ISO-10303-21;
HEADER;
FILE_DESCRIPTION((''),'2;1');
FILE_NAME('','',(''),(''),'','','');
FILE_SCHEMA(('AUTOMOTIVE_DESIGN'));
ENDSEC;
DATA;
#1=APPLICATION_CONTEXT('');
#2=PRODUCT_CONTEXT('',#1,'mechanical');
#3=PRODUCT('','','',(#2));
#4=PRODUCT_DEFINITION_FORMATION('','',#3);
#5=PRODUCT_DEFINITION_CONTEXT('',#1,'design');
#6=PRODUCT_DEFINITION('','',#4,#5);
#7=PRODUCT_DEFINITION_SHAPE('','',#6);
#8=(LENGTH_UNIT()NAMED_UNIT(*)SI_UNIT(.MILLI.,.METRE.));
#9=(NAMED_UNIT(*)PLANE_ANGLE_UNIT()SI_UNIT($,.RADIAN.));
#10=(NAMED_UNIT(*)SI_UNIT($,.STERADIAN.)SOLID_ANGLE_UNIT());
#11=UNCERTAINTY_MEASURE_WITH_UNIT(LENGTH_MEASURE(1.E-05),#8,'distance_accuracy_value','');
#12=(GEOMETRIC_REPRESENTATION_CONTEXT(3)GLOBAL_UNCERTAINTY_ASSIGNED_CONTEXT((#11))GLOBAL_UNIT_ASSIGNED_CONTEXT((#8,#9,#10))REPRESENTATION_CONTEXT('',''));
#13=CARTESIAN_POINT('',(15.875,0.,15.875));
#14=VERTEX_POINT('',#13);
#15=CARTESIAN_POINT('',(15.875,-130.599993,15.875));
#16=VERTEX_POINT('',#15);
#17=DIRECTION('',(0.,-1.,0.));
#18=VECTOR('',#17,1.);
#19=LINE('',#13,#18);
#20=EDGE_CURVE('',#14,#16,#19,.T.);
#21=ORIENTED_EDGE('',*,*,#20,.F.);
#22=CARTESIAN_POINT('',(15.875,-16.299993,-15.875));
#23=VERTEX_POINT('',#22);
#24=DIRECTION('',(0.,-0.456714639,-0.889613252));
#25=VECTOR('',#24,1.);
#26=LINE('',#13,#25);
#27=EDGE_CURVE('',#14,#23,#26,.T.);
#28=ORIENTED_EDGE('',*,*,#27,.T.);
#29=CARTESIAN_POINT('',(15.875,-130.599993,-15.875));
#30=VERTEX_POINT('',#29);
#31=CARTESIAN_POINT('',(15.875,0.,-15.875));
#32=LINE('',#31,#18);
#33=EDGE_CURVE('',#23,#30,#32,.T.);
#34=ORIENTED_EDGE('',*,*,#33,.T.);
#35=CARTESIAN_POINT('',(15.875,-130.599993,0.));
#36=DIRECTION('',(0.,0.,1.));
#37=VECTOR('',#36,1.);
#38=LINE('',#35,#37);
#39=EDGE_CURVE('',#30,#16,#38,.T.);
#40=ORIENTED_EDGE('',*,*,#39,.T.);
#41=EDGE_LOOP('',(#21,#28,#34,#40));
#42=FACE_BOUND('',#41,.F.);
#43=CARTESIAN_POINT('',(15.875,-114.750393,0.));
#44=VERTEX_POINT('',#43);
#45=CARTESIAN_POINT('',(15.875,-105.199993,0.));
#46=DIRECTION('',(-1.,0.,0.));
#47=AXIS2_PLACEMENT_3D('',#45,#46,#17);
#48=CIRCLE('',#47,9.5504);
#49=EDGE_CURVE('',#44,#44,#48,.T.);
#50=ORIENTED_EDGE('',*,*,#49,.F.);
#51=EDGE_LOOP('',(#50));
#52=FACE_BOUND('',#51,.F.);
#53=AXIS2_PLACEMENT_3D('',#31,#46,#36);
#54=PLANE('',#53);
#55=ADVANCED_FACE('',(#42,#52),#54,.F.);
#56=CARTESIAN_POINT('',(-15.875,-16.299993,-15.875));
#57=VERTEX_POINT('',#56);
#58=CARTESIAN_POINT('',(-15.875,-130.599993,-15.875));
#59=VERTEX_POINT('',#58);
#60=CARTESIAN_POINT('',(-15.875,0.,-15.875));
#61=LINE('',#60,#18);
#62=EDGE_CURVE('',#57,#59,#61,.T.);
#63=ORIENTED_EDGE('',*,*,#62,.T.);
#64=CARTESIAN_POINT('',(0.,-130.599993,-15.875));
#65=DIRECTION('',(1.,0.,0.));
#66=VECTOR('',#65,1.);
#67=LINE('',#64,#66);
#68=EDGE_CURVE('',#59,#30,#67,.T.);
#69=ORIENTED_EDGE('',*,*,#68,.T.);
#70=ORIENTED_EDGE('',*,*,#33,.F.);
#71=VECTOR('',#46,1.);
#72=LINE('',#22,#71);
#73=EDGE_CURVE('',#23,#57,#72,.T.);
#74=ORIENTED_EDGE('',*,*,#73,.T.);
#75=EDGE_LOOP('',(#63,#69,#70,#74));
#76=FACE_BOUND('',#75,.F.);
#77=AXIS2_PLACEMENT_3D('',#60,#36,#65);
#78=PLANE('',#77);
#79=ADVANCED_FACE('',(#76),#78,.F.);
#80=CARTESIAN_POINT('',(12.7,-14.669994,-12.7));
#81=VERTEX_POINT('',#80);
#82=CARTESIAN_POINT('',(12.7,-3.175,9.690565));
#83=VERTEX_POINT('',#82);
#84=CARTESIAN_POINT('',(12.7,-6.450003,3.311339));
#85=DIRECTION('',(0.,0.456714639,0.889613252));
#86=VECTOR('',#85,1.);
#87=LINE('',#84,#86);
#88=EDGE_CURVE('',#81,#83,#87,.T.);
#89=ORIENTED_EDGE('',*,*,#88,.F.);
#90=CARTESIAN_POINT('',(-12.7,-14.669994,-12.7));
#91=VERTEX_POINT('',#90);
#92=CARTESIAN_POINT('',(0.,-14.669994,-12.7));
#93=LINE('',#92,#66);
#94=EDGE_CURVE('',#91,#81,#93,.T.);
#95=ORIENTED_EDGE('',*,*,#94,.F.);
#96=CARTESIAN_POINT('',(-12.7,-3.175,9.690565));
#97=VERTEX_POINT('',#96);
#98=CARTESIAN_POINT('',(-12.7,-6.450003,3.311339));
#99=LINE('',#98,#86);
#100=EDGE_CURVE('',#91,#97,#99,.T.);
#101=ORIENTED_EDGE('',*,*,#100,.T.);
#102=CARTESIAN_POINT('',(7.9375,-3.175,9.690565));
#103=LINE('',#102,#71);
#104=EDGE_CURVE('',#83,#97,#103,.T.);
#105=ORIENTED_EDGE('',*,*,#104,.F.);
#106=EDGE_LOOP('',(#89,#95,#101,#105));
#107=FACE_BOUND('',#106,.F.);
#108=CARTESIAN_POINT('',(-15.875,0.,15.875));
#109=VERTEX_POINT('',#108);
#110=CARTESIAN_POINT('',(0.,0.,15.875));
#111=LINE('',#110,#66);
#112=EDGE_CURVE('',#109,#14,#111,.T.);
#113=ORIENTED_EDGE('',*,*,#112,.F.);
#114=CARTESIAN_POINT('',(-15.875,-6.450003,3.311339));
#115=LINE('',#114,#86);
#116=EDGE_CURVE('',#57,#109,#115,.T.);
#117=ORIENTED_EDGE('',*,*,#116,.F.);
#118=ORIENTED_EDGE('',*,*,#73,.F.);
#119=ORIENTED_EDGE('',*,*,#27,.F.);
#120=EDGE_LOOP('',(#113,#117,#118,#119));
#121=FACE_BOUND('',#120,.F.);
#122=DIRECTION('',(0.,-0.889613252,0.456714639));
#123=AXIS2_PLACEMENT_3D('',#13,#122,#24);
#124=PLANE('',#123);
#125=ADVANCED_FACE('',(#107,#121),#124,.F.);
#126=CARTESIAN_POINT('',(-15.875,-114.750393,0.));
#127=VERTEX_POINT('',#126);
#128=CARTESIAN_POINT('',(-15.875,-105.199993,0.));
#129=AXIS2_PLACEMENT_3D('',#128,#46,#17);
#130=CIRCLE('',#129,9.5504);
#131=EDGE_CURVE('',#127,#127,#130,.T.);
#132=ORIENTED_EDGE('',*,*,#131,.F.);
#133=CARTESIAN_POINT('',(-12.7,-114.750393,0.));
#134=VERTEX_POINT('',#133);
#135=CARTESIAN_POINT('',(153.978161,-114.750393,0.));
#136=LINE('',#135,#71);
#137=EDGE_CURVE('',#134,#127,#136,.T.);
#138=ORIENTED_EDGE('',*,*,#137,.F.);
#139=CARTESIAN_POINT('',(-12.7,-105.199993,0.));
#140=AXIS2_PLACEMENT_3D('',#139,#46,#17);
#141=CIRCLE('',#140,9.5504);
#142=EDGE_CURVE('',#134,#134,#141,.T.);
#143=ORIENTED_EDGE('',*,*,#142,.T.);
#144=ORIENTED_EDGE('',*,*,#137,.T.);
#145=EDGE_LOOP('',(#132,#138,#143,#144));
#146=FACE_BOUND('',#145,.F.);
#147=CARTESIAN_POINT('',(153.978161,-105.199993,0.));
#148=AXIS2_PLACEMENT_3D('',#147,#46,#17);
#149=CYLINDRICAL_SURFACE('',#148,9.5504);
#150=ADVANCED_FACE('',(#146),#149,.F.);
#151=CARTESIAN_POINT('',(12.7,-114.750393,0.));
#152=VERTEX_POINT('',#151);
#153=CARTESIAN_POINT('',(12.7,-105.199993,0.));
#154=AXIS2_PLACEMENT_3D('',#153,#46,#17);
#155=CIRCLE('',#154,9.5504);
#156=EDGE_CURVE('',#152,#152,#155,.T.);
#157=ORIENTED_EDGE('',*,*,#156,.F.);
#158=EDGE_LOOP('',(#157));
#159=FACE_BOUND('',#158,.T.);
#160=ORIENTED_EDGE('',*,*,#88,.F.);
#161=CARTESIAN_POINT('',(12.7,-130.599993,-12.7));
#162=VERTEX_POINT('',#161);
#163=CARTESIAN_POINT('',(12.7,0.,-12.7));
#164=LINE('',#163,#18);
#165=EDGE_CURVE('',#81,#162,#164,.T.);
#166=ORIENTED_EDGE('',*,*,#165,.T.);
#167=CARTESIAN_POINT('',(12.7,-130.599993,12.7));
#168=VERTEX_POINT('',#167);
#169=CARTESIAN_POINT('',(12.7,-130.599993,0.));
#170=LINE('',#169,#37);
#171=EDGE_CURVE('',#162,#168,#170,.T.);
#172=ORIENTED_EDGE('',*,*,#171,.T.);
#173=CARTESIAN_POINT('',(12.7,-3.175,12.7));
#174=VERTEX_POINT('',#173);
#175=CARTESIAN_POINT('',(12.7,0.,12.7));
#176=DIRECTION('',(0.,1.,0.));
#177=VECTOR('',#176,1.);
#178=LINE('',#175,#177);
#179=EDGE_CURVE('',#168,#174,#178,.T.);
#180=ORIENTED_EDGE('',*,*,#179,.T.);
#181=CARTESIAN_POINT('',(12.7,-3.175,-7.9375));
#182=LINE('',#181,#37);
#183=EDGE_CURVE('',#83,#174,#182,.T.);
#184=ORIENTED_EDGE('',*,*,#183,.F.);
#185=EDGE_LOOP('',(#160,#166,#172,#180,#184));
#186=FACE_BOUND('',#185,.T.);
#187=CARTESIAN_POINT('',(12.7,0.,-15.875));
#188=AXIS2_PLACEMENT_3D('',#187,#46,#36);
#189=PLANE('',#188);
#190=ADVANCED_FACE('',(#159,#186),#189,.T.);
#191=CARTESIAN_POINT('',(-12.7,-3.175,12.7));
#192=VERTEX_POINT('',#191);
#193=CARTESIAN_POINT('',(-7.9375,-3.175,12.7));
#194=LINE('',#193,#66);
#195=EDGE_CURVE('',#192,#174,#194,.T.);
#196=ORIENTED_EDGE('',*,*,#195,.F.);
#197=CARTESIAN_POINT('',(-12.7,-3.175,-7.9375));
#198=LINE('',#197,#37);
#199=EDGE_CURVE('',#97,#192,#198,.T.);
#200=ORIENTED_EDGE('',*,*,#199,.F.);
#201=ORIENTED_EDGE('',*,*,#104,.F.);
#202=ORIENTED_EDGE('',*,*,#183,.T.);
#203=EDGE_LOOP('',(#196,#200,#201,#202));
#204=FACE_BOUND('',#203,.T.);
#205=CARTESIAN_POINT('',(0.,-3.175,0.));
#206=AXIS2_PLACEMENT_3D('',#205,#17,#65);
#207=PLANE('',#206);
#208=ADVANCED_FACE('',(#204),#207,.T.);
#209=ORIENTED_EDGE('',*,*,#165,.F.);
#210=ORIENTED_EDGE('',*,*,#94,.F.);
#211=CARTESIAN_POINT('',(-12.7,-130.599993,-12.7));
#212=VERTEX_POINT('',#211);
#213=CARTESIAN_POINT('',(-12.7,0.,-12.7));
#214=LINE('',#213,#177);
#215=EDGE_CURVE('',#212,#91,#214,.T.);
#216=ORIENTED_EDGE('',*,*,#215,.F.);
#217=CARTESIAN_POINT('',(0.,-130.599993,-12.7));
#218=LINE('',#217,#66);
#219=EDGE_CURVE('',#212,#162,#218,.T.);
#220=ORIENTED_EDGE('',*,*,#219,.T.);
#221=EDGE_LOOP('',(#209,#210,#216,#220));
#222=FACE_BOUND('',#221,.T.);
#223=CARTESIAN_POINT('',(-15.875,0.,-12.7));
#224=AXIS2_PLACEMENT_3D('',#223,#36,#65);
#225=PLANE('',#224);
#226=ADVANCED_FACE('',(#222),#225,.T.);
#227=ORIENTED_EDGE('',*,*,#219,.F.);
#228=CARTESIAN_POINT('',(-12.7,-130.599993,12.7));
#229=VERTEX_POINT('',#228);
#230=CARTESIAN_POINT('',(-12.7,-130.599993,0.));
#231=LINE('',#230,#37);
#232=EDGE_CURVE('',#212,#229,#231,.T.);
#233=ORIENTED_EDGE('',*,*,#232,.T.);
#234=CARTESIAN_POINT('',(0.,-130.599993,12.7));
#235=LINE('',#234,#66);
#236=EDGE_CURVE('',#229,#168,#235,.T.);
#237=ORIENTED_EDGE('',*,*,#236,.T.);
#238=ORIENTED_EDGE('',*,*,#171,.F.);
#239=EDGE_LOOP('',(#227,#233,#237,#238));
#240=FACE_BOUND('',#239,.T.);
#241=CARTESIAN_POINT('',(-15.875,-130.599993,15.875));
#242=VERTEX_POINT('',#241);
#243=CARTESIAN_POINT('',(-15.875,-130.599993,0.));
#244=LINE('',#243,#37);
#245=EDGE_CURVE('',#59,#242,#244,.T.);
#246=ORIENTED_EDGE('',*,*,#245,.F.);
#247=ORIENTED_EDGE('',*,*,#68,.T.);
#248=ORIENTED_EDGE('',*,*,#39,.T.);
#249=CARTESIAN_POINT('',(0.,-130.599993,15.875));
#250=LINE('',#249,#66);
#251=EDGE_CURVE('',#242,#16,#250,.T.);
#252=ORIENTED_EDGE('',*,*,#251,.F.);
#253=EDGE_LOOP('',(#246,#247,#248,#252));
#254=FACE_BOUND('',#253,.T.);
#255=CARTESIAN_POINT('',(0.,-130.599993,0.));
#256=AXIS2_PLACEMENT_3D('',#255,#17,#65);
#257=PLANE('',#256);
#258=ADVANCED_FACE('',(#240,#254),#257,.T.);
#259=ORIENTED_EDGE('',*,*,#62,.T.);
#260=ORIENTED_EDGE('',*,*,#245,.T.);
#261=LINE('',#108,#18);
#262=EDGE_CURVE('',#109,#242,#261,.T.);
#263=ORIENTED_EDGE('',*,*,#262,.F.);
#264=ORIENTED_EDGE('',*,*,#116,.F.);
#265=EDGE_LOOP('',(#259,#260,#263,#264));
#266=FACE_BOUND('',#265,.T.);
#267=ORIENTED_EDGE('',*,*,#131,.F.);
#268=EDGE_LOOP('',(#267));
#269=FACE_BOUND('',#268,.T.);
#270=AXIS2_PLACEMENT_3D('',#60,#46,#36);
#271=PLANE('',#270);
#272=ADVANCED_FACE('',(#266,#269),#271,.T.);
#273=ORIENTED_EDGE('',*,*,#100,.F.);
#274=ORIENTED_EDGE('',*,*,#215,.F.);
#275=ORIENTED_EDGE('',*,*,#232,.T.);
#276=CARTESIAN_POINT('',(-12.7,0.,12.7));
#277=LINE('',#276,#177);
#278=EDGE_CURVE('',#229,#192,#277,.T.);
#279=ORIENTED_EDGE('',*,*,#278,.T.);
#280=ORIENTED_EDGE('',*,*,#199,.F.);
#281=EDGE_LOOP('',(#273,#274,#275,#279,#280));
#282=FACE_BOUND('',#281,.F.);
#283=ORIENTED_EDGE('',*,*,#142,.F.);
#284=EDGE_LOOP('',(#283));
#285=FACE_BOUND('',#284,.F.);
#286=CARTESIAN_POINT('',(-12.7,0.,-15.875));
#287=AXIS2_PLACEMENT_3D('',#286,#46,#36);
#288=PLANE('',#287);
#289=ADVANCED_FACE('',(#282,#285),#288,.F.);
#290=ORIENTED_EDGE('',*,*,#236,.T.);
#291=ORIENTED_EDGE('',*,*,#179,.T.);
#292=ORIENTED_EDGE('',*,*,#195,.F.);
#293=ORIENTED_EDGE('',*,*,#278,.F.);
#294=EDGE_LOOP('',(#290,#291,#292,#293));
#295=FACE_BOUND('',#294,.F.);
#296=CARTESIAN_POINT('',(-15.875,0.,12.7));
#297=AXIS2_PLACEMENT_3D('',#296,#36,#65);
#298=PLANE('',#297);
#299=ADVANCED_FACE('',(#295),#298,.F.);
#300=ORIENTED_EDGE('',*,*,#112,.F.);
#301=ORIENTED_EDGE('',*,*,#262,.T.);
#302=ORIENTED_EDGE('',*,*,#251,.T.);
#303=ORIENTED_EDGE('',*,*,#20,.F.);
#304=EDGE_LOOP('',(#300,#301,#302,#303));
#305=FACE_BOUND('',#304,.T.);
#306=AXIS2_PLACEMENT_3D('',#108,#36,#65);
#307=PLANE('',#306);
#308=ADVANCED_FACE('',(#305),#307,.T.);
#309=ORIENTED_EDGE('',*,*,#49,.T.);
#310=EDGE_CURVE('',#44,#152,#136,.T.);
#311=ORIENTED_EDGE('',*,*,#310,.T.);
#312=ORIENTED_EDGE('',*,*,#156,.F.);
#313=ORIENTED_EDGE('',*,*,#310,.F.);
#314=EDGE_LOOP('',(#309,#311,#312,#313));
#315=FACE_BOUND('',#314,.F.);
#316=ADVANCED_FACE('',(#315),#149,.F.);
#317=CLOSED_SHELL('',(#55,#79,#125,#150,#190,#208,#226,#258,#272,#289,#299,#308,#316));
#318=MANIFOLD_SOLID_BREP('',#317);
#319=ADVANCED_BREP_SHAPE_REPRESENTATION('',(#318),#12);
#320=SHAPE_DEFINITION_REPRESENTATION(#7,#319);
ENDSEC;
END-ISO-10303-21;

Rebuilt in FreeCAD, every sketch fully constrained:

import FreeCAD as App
import Part
import Sketcher
Q = App.Units.Quantity


def faces_at(feature, points):
    """Names of the faces that lie closest to the given points."""
    faces = feature.Shape.Faces
    near = lambda p: min(range(len(faces)), key=lambda i: faces[i].distToShape(Part.Vertex(*p))[0])
    return sorted({f"Face{near(p) + 1}" for p in points})


def add_polygon(sketch, points):
    """Adds a closed chain of lines whose ends are joined by coincident constraints."""
    first, n = sketch.GeometryCount, len(points)
    for a, b in zip(points, points[1:] + points[:1]):
        sketch.addGeometry(Part.LineSegment(App.Vector(*a, 0), App.Vector(*b, 0)), False)
    for i in range(n):
        sketch.addConstraint(Sketcher.Constraint("Coincident", first + i, 2, first + (i + 1) % n, 1))

doc = App.newDocument("Part")
params = doc.addObject("Spreadsheet::Sheet", "Params")
for row, (alias, value) in enumerate([
    ("sketch1_width", "1.25 in"),
    ("pad1_length", "130.599993 mm"),
    ("thickness_wall", "0.125 in"),
    ("sketch2_height", "1.25 in"),
    ("pocket1_length", "2 in"),
    ("sketch3_diameter", "0.752 in"),
    ("hole_diameter", "0.752 in"),
], start=1):
    params.set(f"A{row}", alias)
    params.set(f"B{row}", "=" + value)
    params.setAlias(f"B{row}", alias)

body = doc.addObject("PartDesign::Body", "Body")

sketch1 = body.newObject("Sketcher::SketchObject", "Sketch")
sketch1.AttachmentSupport = (doc.getObject("XZ_Plane"), [""])
sketch1.MapMode = "FlatFace"
add_polygon(sketch1, [(-15.875, 15.875), (-15.875, -15.875), (15.875, -15.875), (15.875, 15.875)])
sketch1.addConstraint(Sketcher.Constraint("Vertical", 0))
sketch1.addConstraint(Sketcher.Constraint("Horizontal", 1))
sketch1.addConstraint(Sketcher.Constraint("Vertical", 2))
sketch1.addConstraint(Sketcher.Constraint("Horizontal", 3))
sketch1.addConstraint(Sketcher.Constraint("Symmetric", 0, 2, 2, 2, -1, 1))
sketch1.addConstraint(Sketcher.Constraint("Equal", 3, 0))
sketch1.addConstraint(Sketcher.Constraint("DistanceX", 1, 1, 1, 2, Q("1.25 in")))
sketch1.setExpression("Constraints[10]", "Params.sketch1_width")
pad1 = body.newObject("PartDesign::Pad", "Pad")
pad1.Profile = sketch1
pad1.setExpression("Length", "Params.pad1_length")
doc.recompute()

thickness = body.newObject("PartDesign::Thickness", "Thickness")
thickness.Base = (pad1, faces_at(pad1, [(0, -130.6, 0)]))
thickness.setExpression("Value", "Params.thickness_wall")
thickness.Reversed = True
thickness.Join = "Arc"

sketch2 = body.newObject("Sketcher::SketchObject", "Sketch001")
sketch2.AttachmentSupport = (doc.getObject("YZ_Plane"), [""])
sketch2.MapMode = "FlatFace"
sketch2.AttachmentOffset = App.Placement(App.Vector(0, 0, 0.625 * 25.4), App.Rotation())
add_polygon(sketch2, [(0, -15.875), (0, 15.875), (-16.299993, -15.875)])
sketch2.addConstraint(Sketcher.Constraint("Vertical", 0))
sketch2.addConstraint(Sketcher.Constraint("Horizontal", 2))
sketch2.addConstraint(Sketcher.Constraint("Symmetric", 0, 2, 2, 2, -1, 1))
sketch2.addConstraint(Sketcher.Constraint("DistanceY", 0, 1, 0, 2, Q("1.25 in")))
sketch2.addConstraint(Sketcher.Constraint("DistanceX", 2, 1, 2, 2, 16.299993))
sketch2.setExpression("Constraints[6]", "Params.sketch2_height")
pocket1 = body.newObject("PartDesign::Pocket", "Pocket")
pocket1.Profile = sketch2
pocket1.setExpression("Length", "Params.pocket1_length")

sketch3 = body.newObject("Sketcher::SketchObject", "Sketch002")
sketch3.AttachmentSupport = (doc.getObject("YZ_Plane"), [""])
sketch3.MapMode = "FlatFace"
sketch3.AttachmentOffset = App.Placement(App.Vector(0, 0, 0.625 * 25.4), App.Rotation())
sketch3.addGeometry(Part.Circle(App.Vector(-105.199993, 0, 0), App.Vector(0, 0, 1), 9.5504), False)
sketch3.addConstraint(Sketcher.Constraint("PointOnObject", 0, 3, -1))
sketch3.addConstraint(Sketcher.Constraint("Diameter", 0, Q("0.752 in")))
sketch3.addConstraint(Sketcher.Constraint("DistanceX", 0, 3, -1, 1, 105.199993))
sketch3.setExpression("Constraints[1]", "Params.sketch3_diameter")
doc.recompute()
hole = body.newObject("PartDesign::Hole", "Hole")
hole.Profile = sketch3
hole.ThreadType = "None"
hole.setExpression("Diameter", "Params.hole_diameter")
hole.DepthType = "ThroughAll"

doc.recompute()
